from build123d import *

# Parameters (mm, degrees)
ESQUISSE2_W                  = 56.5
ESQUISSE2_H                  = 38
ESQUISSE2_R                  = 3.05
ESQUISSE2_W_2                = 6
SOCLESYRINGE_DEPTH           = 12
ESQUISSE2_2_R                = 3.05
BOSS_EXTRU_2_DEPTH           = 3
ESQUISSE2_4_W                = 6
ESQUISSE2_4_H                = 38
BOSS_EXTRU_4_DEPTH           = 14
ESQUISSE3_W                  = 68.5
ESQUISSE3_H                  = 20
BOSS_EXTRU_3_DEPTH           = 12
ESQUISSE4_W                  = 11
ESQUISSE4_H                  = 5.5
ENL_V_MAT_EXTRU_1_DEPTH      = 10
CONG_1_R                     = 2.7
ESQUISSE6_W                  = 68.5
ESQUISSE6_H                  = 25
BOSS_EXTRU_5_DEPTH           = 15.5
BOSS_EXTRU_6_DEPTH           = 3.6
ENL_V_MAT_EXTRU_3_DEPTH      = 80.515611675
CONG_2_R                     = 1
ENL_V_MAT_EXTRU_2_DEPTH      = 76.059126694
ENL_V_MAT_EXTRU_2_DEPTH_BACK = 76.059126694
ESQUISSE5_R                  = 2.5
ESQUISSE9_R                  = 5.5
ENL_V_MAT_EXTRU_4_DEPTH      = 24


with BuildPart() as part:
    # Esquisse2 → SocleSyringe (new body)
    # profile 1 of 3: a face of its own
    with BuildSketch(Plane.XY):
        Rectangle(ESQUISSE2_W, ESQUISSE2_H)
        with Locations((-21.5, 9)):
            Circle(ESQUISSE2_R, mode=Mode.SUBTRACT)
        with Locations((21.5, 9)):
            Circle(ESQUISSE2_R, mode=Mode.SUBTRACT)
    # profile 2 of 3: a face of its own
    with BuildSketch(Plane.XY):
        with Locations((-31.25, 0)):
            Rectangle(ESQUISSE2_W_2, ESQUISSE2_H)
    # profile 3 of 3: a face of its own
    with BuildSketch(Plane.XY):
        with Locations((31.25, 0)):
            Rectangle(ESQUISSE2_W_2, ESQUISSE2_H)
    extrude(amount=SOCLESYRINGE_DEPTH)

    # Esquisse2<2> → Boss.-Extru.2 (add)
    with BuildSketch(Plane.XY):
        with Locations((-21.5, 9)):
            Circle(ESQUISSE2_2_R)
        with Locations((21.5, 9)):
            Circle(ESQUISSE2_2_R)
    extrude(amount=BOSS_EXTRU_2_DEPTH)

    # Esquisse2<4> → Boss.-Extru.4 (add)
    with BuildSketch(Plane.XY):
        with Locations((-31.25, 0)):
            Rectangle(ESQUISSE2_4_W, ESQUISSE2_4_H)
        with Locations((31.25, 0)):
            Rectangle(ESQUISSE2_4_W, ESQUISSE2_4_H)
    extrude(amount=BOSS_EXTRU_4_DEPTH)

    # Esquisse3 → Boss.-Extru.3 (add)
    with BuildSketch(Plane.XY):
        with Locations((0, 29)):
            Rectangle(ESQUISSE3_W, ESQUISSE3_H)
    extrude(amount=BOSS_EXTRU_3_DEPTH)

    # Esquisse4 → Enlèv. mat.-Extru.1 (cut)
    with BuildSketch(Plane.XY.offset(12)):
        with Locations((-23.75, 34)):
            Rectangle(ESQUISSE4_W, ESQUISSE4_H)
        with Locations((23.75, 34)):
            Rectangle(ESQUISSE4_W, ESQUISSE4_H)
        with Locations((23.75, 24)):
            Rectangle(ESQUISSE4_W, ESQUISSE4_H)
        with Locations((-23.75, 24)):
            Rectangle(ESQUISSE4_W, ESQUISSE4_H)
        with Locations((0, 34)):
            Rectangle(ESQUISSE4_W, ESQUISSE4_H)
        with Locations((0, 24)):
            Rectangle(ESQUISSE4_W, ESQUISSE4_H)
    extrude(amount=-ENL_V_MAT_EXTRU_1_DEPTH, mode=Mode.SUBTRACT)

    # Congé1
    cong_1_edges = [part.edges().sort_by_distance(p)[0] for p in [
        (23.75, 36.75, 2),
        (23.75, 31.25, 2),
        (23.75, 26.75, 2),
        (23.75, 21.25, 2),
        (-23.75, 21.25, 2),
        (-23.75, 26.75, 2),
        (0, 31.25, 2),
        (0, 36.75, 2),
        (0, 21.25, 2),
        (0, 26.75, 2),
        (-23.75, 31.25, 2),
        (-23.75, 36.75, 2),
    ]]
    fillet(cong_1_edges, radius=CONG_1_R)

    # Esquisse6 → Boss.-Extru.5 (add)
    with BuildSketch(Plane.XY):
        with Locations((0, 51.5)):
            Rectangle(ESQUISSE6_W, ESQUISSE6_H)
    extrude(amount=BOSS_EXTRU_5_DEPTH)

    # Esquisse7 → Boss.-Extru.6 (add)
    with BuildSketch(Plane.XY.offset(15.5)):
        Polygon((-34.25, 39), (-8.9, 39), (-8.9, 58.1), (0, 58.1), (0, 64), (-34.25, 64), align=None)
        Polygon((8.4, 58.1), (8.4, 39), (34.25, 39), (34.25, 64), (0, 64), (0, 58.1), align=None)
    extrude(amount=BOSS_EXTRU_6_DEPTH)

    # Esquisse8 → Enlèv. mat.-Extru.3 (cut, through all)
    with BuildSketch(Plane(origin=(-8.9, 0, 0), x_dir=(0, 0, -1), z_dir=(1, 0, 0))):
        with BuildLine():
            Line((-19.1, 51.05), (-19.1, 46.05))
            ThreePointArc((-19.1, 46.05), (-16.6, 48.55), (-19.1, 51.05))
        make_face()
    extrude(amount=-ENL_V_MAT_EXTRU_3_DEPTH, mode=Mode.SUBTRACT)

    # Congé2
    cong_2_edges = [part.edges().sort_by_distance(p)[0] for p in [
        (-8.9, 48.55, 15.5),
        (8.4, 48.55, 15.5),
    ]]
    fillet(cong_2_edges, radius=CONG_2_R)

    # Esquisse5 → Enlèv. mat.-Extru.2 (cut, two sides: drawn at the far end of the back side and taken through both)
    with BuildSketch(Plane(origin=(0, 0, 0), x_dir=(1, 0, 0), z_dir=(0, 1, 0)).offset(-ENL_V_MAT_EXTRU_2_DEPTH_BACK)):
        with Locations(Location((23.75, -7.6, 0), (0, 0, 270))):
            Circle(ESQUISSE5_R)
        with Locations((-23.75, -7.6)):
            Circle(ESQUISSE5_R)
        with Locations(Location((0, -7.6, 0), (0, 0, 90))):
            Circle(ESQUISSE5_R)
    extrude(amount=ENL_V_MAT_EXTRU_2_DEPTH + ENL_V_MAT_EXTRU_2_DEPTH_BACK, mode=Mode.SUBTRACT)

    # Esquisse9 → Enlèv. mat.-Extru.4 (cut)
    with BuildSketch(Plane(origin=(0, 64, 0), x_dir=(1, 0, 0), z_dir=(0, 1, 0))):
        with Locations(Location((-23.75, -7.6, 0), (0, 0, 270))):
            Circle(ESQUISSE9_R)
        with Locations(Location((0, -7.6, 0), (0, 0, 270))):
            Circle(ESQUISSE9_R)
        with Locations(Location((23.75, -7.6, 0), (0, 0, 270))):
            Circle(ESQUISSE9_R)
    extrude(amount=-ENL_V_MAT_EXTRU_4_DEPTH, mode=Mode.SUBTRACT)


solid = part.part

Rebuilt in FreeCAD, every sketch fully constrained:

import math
import FreeCAD as App
import Part
import Sketcher

V = App.Vector
Q = App.Units.Quantity


def edges_at(feature, points):
    """Names of the edges that pass closest to the given points."""
    edges = feature.Shape.Edges
    near = lambda p: min(range(len(edges)), key=lambda i: edges[i].distToShape(Part.Vertex(*p))[0])
    return sorted({f"Edge{near(p) + 1}" for p in points})

doc = App.newDocument("Part")
body = doc.addObject("PartDesign::Body", "Body")

# Sketch on XY plane
sketch1 = body.newObject("Sketcher::SketchObject", "Sketch")
sketch1.AttachmentSupport = (doc.getObject("XY_Plane"), [""])
sketch1.MapMode = "FlatFace"
sketch1.addGeometry(Part.LineSegment(V(34.2, -19, 0), V(34.2, 19, 0)), False)
sketch1.addGeometry(Part.LineSegment(V(34.2, 19, 0), V(-34.2, 19, 0)), False)
sketch1.addGeometry(Part.LineSegment(V(-34.2, 19, 0), V(-34.2, -19, 0)), False)
sketch1.addGeometry(Part.LineSegment(V(-34.2, -19, 0), V(34.2, -19, 0)), False)
sketch1.addGeometry(Part.Circle(V(-21.5, 9, 0), V(0, 0, 1), 3), False)
sketch1.addGeometry(Part.Circle(V(21.5, 9, 0), V(0, 0, 1), 3), False)
sketch1.addConstraint(Sketcher.Constraint("Coincident", 0, 2, 1, 1))
sketch1.addConstraint(Sketcher.Constraint("Coincident", 1, 2, 2, 1))
sketch1.addConstraint(Sketcher.Constraint("Coincident", 2, 2, 3, 1))
sketch1.addConstraint(Sketcher.Constraint("Coincident", 3, 2, 0, 1))
sketch1.addConstraint(Sketcher.Constraint("Vertical", 0))
sketch1.addConstraint(Sketcher.Constraint("Horizontal", 1))
sketch1.addConstraint(Sketcher.Constraint("Vertical", 2))
sketch1.addConstraint(Sketcher.Constraint("Horizontal", 3))
sketch1.addConstraint(Sketcher.Constraint("Equal", 4, 5))
sketch1.addConstraint(Sketcher.Constraint("Symmetric", 0, 2, 2, 2, -1, 1))
sketch1.addConstraint(Sketcher.Constraint("Symmetric", 4, 3, 5, 3, -2))
sketch1.addConstraint(Sketcher.Constraint("Diameter", 4, Q("6.1 mm")))
sketch1.addConstraint(Sketcher.Constraint("DistanceY", 0, 1, 0, 2, Q("38 mm")))
sketch1.addConstraint(Sketcher.Constraint("DistanceX", 1, 2, 1, 1, Q("68.5 mm")))
sketch1.addConstraint(Sketcher.Constraint("DistanceY", -1, 1, 4, 3, Q("9 mm")))
sketch1.addConstraint(Sketcher.Constraint("DistanceX", 4, 3, 5, 3, Q("43 mm")))
pad1 = body.newObject("PartDesign::Pad", "Pad")
pad1.Profile = sketch1
pad1.Length = 12

# Sketch on XY plane
sketch2 = body.newObject("Sketcher::SketchObject", "Sketch001")
sketch2.AttachmentSupport = (doc.getObject("XY_Plane"), [""])
sketch2.MapMode = "FlatFace"
sketch2.addGeometry(Part.Circle(V(-21.5, 9, 0), V(0, 0, 1), 3), False)
sketch2.addGeometry(Part.Circle(V(21.5, 9, 0), V(0, 0, 1), 3), False)
sketch2.addConstraint(Sketcher.Constraint("Equal", 0, 1))
sketch2.addConstraint(Sketcher.Constraint("Symmetric", 0, 3, 1, 3, -2))
sketch2.addConstraint(Sketcher.Constraint("Diameter", 0, Q("6.1 mm")))
sketch2.addConstraint(Sketcher.Constraint("DistanceY", -1, 1, 0, 3, Q("9 mm")))
sketch2.addConstraint(Sketcher.Constraint("DistanceX", 0, 3, 1, 3, Q("43 mm")))
pad2 = body.newObject("PartDesign::Pad", "Pad001")
pad2.Profile = sketch2
pad2.Length = 3

# Sketch on XY plane
sketch3 = body.newObject("Sketcher::SketchObject", "Sketch002")
sketch3.AttachmentSupport = (doc.getObject("XY_Plane"), [""])
sketch3.MapMode = "FlatFace"
sketch3.addGeometry(Part.LineSegment(V(-34, 19, 0), V(-34, -19, 0)), False)
sketch3.addGeometry(Part.LineSegment(V(-34, -19, 0), V(-28, -19, 0)), False)
sketch3.addGeometry(Part.LineSegment(V(-28, -19, 0), V(-28, 19, 0)), False)
sketch3.addGeometry(Part.LineSegment(V(-28, 19, 0), V(-34, 19, 0)), False)
sketch3.addGeometry(Part.LineSegment(V(28, 19, 0), V(28, -19, 0)), False)
sketch3.addGeometry(Part.LineSegment(V(28, -19, 0), V(34, -19, 0)), False)
sketch3.addGeometry(Part.LineSegment(V(34, -19, 0), V(34, 19, 0)), False)
sketch3.addGeometry(Part.LineSegment(V(34, 19, 0), V(28, 19, 0)), False)
sketch3.addConstraint(Sketcher.Constraint("Coincident", 0, 2, 1, 1))
sketch3.addConstraint(Sketcher.Constraint("Coincident", 1, 2, 2, 1))
sketch3.addConstraint(Sketcher.Constraint("Coincident", 2, 2, 3, 1))
sketch3.addConstraint(Sketcher.Constraint("Coincident", 3, 2, 0, 1))
sketch3.addConstraint(Sketcher.Constraint("Coincident", 4, 2, 5, 1))
sketch3.addConstraint(Sketcher.Constraint("Coincident", 5, 2, 6, 1))
sketch3.addConstraint(Sketcher.Constraint("Coincident", 6, 2, 7, 1))
sketch3.addConstraint(Sketcher.Constraint("Coincident", 7, 2, 4, 1))
sketch3.addConstraint(Sketcher.Constraint("Vertical", 0))
sketch3.addConstraint(Sketcher.Constraint("Horizontal", 1))
sketch3.addConstraint(Sketcher.Constraint("Vertical", 2))
sketch3.addConstraint(Sketcher.Constraint("Horizontal", 3))
sketch3.addConstraint(Sketcher.Constraint("Vertical", 4))
sketch3.addConstraint(Sketcher.Constraint("Horizontal", 5))
sketch3.addConstraint(Sketcher.Constraint("Vertical", 6))
sketch3.addConstraint(Sketcher.Constraint("Horizontal", 7))
sketch3.addConstraint(Sketcher.Constraint("Symmetric", 2, 2, 4, 2, -1, 1))
sketch3.addConstraint(Sketcher.Constraint("Symmetric", 0, 2, 6, 2, -1, 1))
sketch3.addConstraint(Sketcher.Constraint("Horizontal", 1, 2, 4, 2))
sketch3.addConstraint(Sketcher.Constraint("DistanceX", 1, 1, 1, 2, Q("6 mm")))
sketch3.addConstraint(Sketcher.Constraint("DistanceY", 0, 2, 0, 1, Q("38 mm")))
sketch3.addConstraint(Sketcher.Constraint("DistanceX", 1, 2, 4, 2, Q("56.5 mm")))
pad3 = body.newObject("PartDesign::Pad", "Pad002")
pad3.Profile = sketch3
pad3.Length = 14

# Sketch on XY plane
sketch4 = body.newObject("Sketcher::SketchObject", "Sketch003")
sketch4.AttachmentSupport = (doc.getObject("XY_Plane"), [""])
sketch4.MapMode = "FlatFace"
sketch4.addGeometry(Part.LineSegment(V(-34, 39, 0), V(-34, 19, 0)), False)
sketch4.addGeometry(Part.LineSegment(V(-34, 19, 0), V(34, 19, 0)), False)
sketch4.addGeometry(Part.LineSegment(V(34, 19, 0), V(34, 39, 0)), False)
sketch4.addGeometry(Part.LineSegment(V(34, 39, 0), V(-34, 39, 0)), False)
sketch4.addConstraint(Sketcher.Constraint("Coincident", 0, 2, 1, 1))
sketch4.addConstraint(Sketcher.Constraint("Coincident", 1, 2, 2, 1))
sketch4.addConstraint(Sketcher.Constraint("Coincident", 2, 2, 3, 1))
sketch4.addConstraint(Sketcher.Constraint("Coincident", 3, 2, 0, 1))
sketch4.addConstraint(Sketcher.Constraint("Vertical", 0))
sketch4.addConstraint(Sketcher.Constraint("Horizontal", 1))
sketch4.addConstraint(Sketcher.Constraint("Vertical", 2))
sketch4.addConstraint(Sketcher.Constraint("Horizontal", 3))
sketch4.addConstraint(Sketcher.Constraint("DistanceY", 0, 2, 0, 1, Q("20 mm")))
sketch4.addConstraint(Sketcher.Constraint("DistanceX", 1, 1, 1, 2, Q("68.5 mm")))
sketch4.addConstraint(Sketcher.Constraint("DistanceY", -1, 1, 0, 2, Q("19 mm")))
sketch4.addConstraint(Sketcher.Constraint("DistanceX", 0, 2, -1, 1, Q("34.25 mm")))
pad4 = body.newObject("PartDesign::Pad", "Pad003")
pad4.Profile = sketch4
pad4.Length = 12

# Sketch on XY plane
sketch5 = body.newObject("Sketcher::SketchObject", "Sketch004")
sketch5.AttachmentSupport = (doc.getObject("XY_Plane"), [""])
sketch5.MapMode = "FlatFace"
sketch5.AttachmentOffset = App.Placement(V(0, 0, 12), App.Rotation())
sketch5.addGeometry(Part.LineSegment(V(-29, 37, 0), V(-29, 31, 0)), False)
sketch5.addGeometry(Part.LineSegment(V(-29, 31, 0), V(-18, 31, 0)), False)
sketch5.addGeometry(Part.LineSegment(V(-18, 31, 0), V(-18, 37, 0)), False)
sketch5.addGeometry(Part.LineSegment(V(-18, 37, 0), V(-29, 37, 0)), False)
sketch5.addGeometry(Part.LineSegment(V(18, 37, 0), V(18, 31, 0)), False)
sketch5.addGeometry(Part.LineSegment(V(18, 31, 0), V(29, 31, 0)), False)
sketch5.addGeometry(Part.LineSegment(V(29, 31, 0), V(29, 37, 0)), False)
sketch5.addGeometry(Part.LineSegment(V(29, 37, 0), V(18, 37, 0)), False)
sketch5.addGeometry(Part.LineSegment(V(18, 27, 0), V(18, 21, 0)), False)
sketch5.addGeometry(Part.LineSegment(V(18, 21, 0), V(29, 21, 0)), False)
sketch5.addGeometry(Part.LineSegment(V(29, 21, 0), V(29, 27, 0)), False)
sketch5.addGeometry(Part.LineSegment(V(29, 27, 0), V(18, 27, 0)), False)
sketch5.addGeometry(Part.LineSegment(V(-29, 27, 0), V(-29, 21, 0)), False)
sketch5.addGeometry(Part.LineSegment(V(-29, 21, 0), V(-18, 21, 0)), False)
sketch5.addGeometry(Part.LineSegment(V(-18, 21, 0), V(-18, 27, 0)), False)
sketch5.addGeometry(Part.LineSegment(V(-18, 27, 0), V(-29, 27, 0)), False)
sketch5.addGeometry(Part.LineSegment(V(-6, 37, 0), V(-6, 31, 0)), False)
sketch5.addGeometry(Part.LineSegment(V(-6, 31, 0), V(6, 31, 0)), False)
sketch5.addGeometry(Part.LineSegment(V(6, 31, 0), V(6, 37, 0)), False)
sketch5.addGeometry(Part.LineSegment(V(6, 37, 0), V(-6, 37, 0)), False)
sketch5.addGeometry(Part.LineSegment(V(-6, 27, 0), V(-6, 21, 0)), False)
sketch5.addGeometry(Part.LineSegment(V(-6, 21, 0), V(6, 21, 0)), False)
sketch5.addGeometry(Part.LineSegment(V(6, 21, 0), V(6, 27, 0)), False)
sketch5.addGeometry(Part.LineSegment(V(6, 27, 0), V(-6, 27, 0)), False)
sketch5.addConstraint(Sketcher.Constraint("Coincident", 0, 2, 1, 1))
sketch5.addConstraint(Sketcher.Constraint("Coincident", 1, 2, 2, 1))
sketch5.addConstraint(Sketcher.Constraint("Coincident", 2, 2, 3, 1))
sketch5.addConstraint(Sketcher.Constraint("Coincident", 3, 2, 0, 1))
sketch5.addConstraint(Sketcher.Constraint("Coincident", 4, 2, 5, 1))
sketch5.addConstraint(Sketcher.Constraint("Coincident", 5, 2, 6, 1))
sketch5.addConstraint(Sketcher.Constraint("Coincident", 6, 2, 7, 1))
sketch5.addConstraint(Sketcher.Constraint("Coincident", 7, 2, 4, 1))
sketch5.addConstraint(Sketcher.Constraint("Coincident", 8, 2, 9, 1))
sketch5.addConstraint(Sketcher.Constraint("Coincident", 9, 2, 10, 1))
sketch5.addConstraint(Sketcher.Constraint("Coincident", 10, 2, 11, 1))
sketch5.addConstraint(Sketcher.Constraint("Coincident", 11, 2, 8, 1))
sketch5.addConstraint(Sketcher.Constraint("Coincident", 12, 2, 13, 1))
sketch5.addConstraint(Sketcher.Constraint("Coincident", 13, 2, 14, 1))
sketch5.addConstraint(Sketcher.Constraint("Coincident", 14, 2, 15, 1))
sketch5.addConstraint(Sketcher.Constraint("Coincident", 15, 2, 12, 1))
sketch5.addConstraint(Sketcher.Constraint("Coincident", 16, 2, 17, 1))
sketch5.addConstraint(Sketcher.Constraint("Coincident", 17, 2, 18, 1))
sketch5.addConstraint(Sketcher.Constraint("Coincident", 18, 2, 19, 1))
sketch5.addConstraint(Sketcher.Constraint("Coincident", 19, 2, 16, 1))
sketch5.addConstraint(Sketcher.Constraint("Coincident", 20, 2, 21, 1))
sketch5.addConstraint(Sketcher.Constraint("Coincident", 21, 2, 22, 1))
sketch5.addConstraint(Sketcher.Constraint("Coincident", 22, 2, 23, 1))
sketch5.addConstraint(Sketcher.Constraint("Coincident", 23, 2, 20, 1))
sketch5.addConstraint(Sketcher.Constraint("Vertical", 0))
sketch5.addConstraint(Sketcher.Constraint("Horizontal", 1))
sketch5.addConstraint(Sketcher.Constraint("Vertical", 2))
sketch5.addConstraint(Sketcher.Constraint("Horizontal", 3))
sketch5.addConstraint(Sketcher.Constraint("Vertical", 4))
sketch5.addConstraint(Sketcher.Constraint("Horizontal", 5))
sketch5.addConstraint(Sketcher.Constraint("Vertical", 6))
sketch5.addConstraint(Sketcher.Constraint("Horizontal", 7))
sketch5.addConstraint(Sketcher.Constraint("Vertical", 8))
sketch5.addConstraint(Sketcher.Constraint("Horizontal", 9))
sketch5.addConstraint(Sketcher.Constraint("Vertical", 10))
sketch5.addConstraint(Sketcher.Constraint("Horizontal", 11))
sketch5.addConstraint(Sketcher.Constraint("Vertical", 12))
sketch5.addConstraint(Sketcher.Constraint("Horizontal", 13))
sketch5.addConstraint(Sketcher.Constraint("Vertical", 14))
sketch5.addConstraint(Sketcher.Constraint("Horizontal", 15))
sketch5.addConstraint(Sketcher.Constraint("Vertical", 16))
sketch5.addConstraint(Sketcher.Constraint("Horizontal", 17))
sketch5.addConstraint(Sketcher.Constraint("Vertical", 18))
sketch5.addConstraint(Sketcher.Constraint("Horizontal", 19))
sketch5.addConstraint(Sketcher.Constraint("Vertical", 20))
sketch5.addConstraint(Sketcher.Constraint("Horizontal", 21))
sketch5.addConstraint(Sketcher.Constraint("Vertical", 22))
sketch5.addConstraint(Sketcher.Constraint("Horizontal", 23))
sketch5.addConstraint(Sketcher.Constraint("Symmetric", 1, 2, 4, 2, -2))
sketch5.addConstraint(Sketcher.Constraint("Symmetric", 3, 2, 6, 2, -2))
sketch5.addConstraint(Sketcher.Constraint("Symmetric", 9, 2, 12, 2, -2))
sketch5.addConstraint(Sketcher.Constraint("Symmetric", 11, 2, 14, 2, -2))
sketch5.addConstraint(Sketcher.Constraint("Horizontal", 5, 2, 16, 2))
sketch5.addConstraint(Sketcher.Constraint("Horizontal", 7, 2, 18, 2))
sketch5.addConstraint(Sketcher.Constraint("Horizontal", 13, 2, 20, 2))
sketch5.addConstraint(Sketcher.Constraint("Horizontal", 15, 2, 22, 2))
sketch5.addConstraint(Sketcher.Constraint("Vertical", 7, 2, 8, 2))
sketch5.addConstraint(Sketcher.Constraint("Vertical", 6, 2, 9, 2))
sketch5.addConstraint(Sketcher.Constraint("Vertical", 19, 2, 20, 2))
sketch5.addConstraint(Sketcher.Constraint("Vertical", 18, 2, 21, 2))
sketch5.addConstraint(Sketcher.Constraint("Equal", 15, 17))
sketch5.addConstraint(Sketcher.Constraint("Equal", 6, 8))
sketch5.addConstraint(Sketcher.Constraint("DistanceX", 1, 1, 1, 2, Q("11 mm")))
sketch5.addConstraint(Sketcher.Constraint("DistanceY", 0, 2, 0, 1, Q("5.5 mm")))
sketch5.addConstraint(Sketcher.Constraint("DistanceY", 8, 2, 4, 2, Q("10 mm")))
sketch5.addConstraint(Sketcher.Constraint("DistanceX", 16, 2, -1, 1, Q("5.5 mm")))
sketch5.addConstraint(Sketcher.Constraint("DistanceX", 1, 2, 4, 2, Q("36.5 mm")))
sketch5.addConstraint(Sketcher.Constraint("DistanceY", -1, 1, 0, 2, Q("31.25 mm")))
pocket1 = body.newObject("PartDesign::Pocket", "Pocket")
pocket1.Profile = sketch5
pocket1.Length = 10
doc.recompute()

fillet = body.newObject("PartDesign::Fillet", "Fillet")
fillet.Base = (pocket1, edges_at(pocket1, [
    (23.75, 36.75, 2),
    (23.75, 31.25, 2),
    (23.75, 26.75, 2),
    (23.75, 21.25, 2),
    (-23.75, 21.25, 2),
    (-23.75, 26.75, 2),
    (0, 31.25, 2),
    (0, 36.75, 2),
    (0, 21.25, 2),
    (0, 26.75, 2),
    (-23.75, 31.25, 2),
    (-23.75, 36.75, 2),
]))
fillet.Radius = 2.7

# Sketch on XY plane
sketch6 = body.newObject("Sketcher::SketchObject", "Sketch005")
sketch6.AttachmentSupport = (doc.getObject("XY_Plane"), [""])
sketch6.MapMode = "FlatFace"
sketch6.addGeometry(Part.LineSegment(V(-34, 64, 0), V(-34, 39, 0)), False)
sketch6.addGeometry(Part.LineSegment(V(-34, 39, 0), V(34, 39, 0)), False)
sketch6.addGeometry(Part.LineSegment(V(34, 39, 0), V(34, 64, 0)), False)
sketch6.addGeometry(Part.LineSegment(V(34, 64, 0), V(-34, 64, 0)), False)
sketch6.addConstraint(Sketcher.Constraint("Coincident", 0, 2, 1, 1))
sketch6.addConstraint(Sketcher.Constraint("Coincident", 1, 2, 2, 1))
sketch6.addConstraint(Sketcher.Constraint("Coincident", 2, 2, 3, 1))
sketch6.addConstraint(Sketcher.Constraint("Coincident", 3, 2, 0, 1))
sketch6.addConstraint(Sketcher.Constraint("Vertical", 0))
sketch6.addConstraint(Sketcher.Constraint("Horizontal", 1))
sketch6.addConstraint(Sketcher.Constraint("Vertical", 2))
sketch6.addConstraint(Sketcher.Constraint("Horizontal", 3))
sketch6.addConstraint(Sketcher.Constraint("DistanceY", 0, 2, 0, 1, Q("25 mm")))
sketch6.addConstraint(Sketcher.Constraint("DistanceX", 1, 1, 1, 2, Q("68.5 mm")))
sketch6.addConstraint(Sketcher.Constraint("DistanceY", -1, 1, 0, 2, Q("39 mm")))
sketch6.addConstraint(Sketcher.Constraint("DistanceX", 0, 2, -1, 1, Q("34.25 mm")))
pad5 = body.newObject("PartDesign::Pad", "Pad004")
pad5.Profile = sketch6
pad5.Length = 15.5

# Sketch on XY plane
sketch7 = body.newObject("Sketcher::SketchObject", "Sketch006")
sketch7.AttachmentSupport = (doc.getObject("XY_Plane"), [""])
sketch7.MapMode = "FlatFace"
sketch7.AttachmentOffset = App.Placement(V(0, 0, 15.5), App.Rotation())
sketch7.addGeometry(Part.LineSegment(V(-34, 39, 0), V(-9, 39, 0)), False)
sketch7.addGeometry(Part.LineSegment(V(-9, 39, 0), V(-9, 58, 0)), False)
sketch7.addGeometry(Part.LineSegment(V(-9, 58, 0), V(8, 58, 0)), False)
sketch7.addGeometry(Part.LineSegment(V(8, 58, 0), V(8, 39, 0)), False)
sketch7.addGeometry(Part.LineSegment(V(8, 39, 0), V(34, 39, 0)), False)
sketch7.addGeometry(Part.LineSegment(V(34, 39, 0), V(34, 64, 0)), False)
sketch7.addGeometry(Part.LineSegment(V(34, 64, 0), V(-34, 64, 0)), False)
sketch7.addGeometry(Part.LineSegment(V(-34, 64, 0), V(-34, 39, 0)), False)
sketch7.addConstraint(Sketcher.Constraint("Coincident", 0, 2, 1, 1))
sketch7.addConstraint(Sketcher.Constraint("Coincident", 1, 2, 2, 1))
sketch7.addConstraint(Sketcher.Constraint("Coincident", 2, 2, 3, 1))
sketch7.addConstraint(Sketcher.Constraint("Coincident", 3, 2, 4, 1))
sketch7.addConstraint(Sketcher.Constraint("Coincident", 4, 2, 5, 1))
sketch7.addConstraint(Sketcher.Constraint("Coincident", 5, 2, 6, 1))
sketch7.addConstraint(Sketcher.Constraint("Coincident", 6, 2, 7, 1))
sketch7.addConstraint(Sketcher.Constraint("Coincident", 7, 2, 0, 1))
sketch7.addConstraint(Sketcher.Constraint("Horizontal", 0))
sketch7.addConstraint(Sketcher.Constraint("Vertical", 1))
sketch7.addConstraint(Sketcher.Constraint("Horizontal", 2))
sketch7.addConstraint(Sketcher.Constraint("Vertical", 3))
sketch7.addConstraint(Sketcher.Constraint("Horizontal", 4))
sketch7.addConstraint(Sketcher.Constraint("Vertical", 5))
sketch7.addConstraint(Sketcher.Constraint("Horizontal", 6))
sketch7.addConstraint(Sketcher.Constraint("Vertical", 7))
sketch7.addConstraint(Sketcher.Constraint("Symmetric", 4, 2, 7, 2, -2))
sketch7.addConstraint(Sketcher.Constraint("DistanceY", 5, 1, 5, 2, Q("25 mm")))
sketch7.addConstraint(Sketcher.Constraint("DistanceX", 2, 1, 2, 2, Q("17.3 mm")))
sketch7.addConstraint(Sketcher.Constraint("DistanceX", 6, 2, 6, 1, Q("68.5 mm")))
sketch7.addConstraint(Sketcher.Constraint("DistanceY", 1, 1, 1, 2, Q("19.1 mm")))
sketch7.addConstraint(Sketcher.Constraint("DistanceY", -1, 1, 0, 2, Q("39 mm")))
sketch7.addConstraint(Sketcher.Constraint("DistanceX", 0, 1, 0, 2, Q("25.35 mm")))
pad6 = body.newObject("PartDesign::Pad", "Pad005")
pad6.Profile = sketch7
pad6.Length = 3.6

# Sketch on YZ plane
sketch8 = body.newObject("Sketcher::SketchObject", "Sketch007")
sketch8.AttachmentSupport = (doc.getObject("YZ_Plane"), [""])
sketch8.MapMode = "FlatFace"
sketch8.AttachmentOffset = App.Placement(V(0, 0, -8.9), App.Rotation())
sketch8.addGeometry(Part.LineSegment(V(51, 19.1, 0), V(46, 19.1, 0)), False)
sketch8.addGeometry(Part.ArcOfCircle(Part.Circle(V(48.5, 19.1, 0), V(0, 0, 1), 2.5), math.radians(180), math.radians(360)), False)
sketch8.addConstraint(Sketcher.Constraint("Coincident", 0, 1, 1, 2))
sketch8.addConstraint(Sketcher.Constraint("Coincident", 1, 1, 0, 2))
sketch8.addConstraint(Sketcher.Constraint("Horizontal", 0))
sketch8.addConstraint(Sketcher.Constraint("Horizontal", 1, 3, 0, 1))
sketch8.addConstraint(Sketcher.Constraint("Radius", 1, Q("2.5 mm")))
sketch8.addConstraint(Sketcher.Constraint("DistanceY", -1, 1, 1, 3, Q("19.1 mm")))
sketch8.addConstraint(Sketcher.Constraint("DistanceX", -1, 1, 1, 3, Q("48.55 mm")))
pocket2 = body.newObject("PartDesign::Pocket", "Pocket001")
pocket2.Profile = sketch8
pocket2.Type = "ThroughAll"
doc.recompute()

fillet2 = body.newObject("PartDesign::Fillet", "Fillet001")
fillet2.Base = (pocket2, edges_at(pocket2, [(-8.9, 48.55, 15.5), (8.4, 48.55, 15.5)]))
fillet2.Radius = 1

# Sketch on XZ plane
sketch9 = body.newObject("Sketcher::SketchObject", "Sketch008")
sketch9.AttachmentSupport = (doc.getObject("XZ_Plane"), [""])
sketch9.MapMode = "FlatFace"
sketch9.addGeometry(Part.Circle(V(23.8, 7.6, 0), V(0, 0, 1), 2.5), False)
sketch9.addGeometry(Part.Circle(V(-23.8, 7.6, 0), V(0, 0, 1), 2.5), False)
sketch9.addGeometry(Part.Circle(V(0, 7.6, 0), V(0, 0, 1), 2.5), False)
sketch9.addConstraint(Sketcher.Constraint("Equal", 0, 1))
sketch9.addConstraint(Sketcher.Constraint("Equal", 1, 2))
sketch9.addConstraint(Sketcher.Constraint("Symmetric", 0, 3, 1, 3, -2))
sketch9.addConstraint(Sketcher.Constraint("PointOnObject", 2, 3, -2))
sketch9.addConstraint(Sketcher.Constraint("Horizontal", 1, 3, 2, 3))
sketch9.addConstraint(Sketcher.Constraint("Diameter", 0, Q("5 mm")))
sketch9.addConstraint(Sketcher.Constraint("DistanceY", -1, 1, 0, 3, Q("7.6 mm")))
sketch9.addConstraint(Sketcher.Constraint("DistanceX", 1, 3, 0, 3, Q("47.5 mm")))
pocket3 = body.newObject("PartDesign::Pocket", "Pocket002")
pocket3.Profile = sketch9
pocket3.Type = "ThroughAll"
pocket3.Midplane = True

# Sketch on XZ plane
sketch10 = body.newObject("Sketcher::SketchObject", "Sketch009")
sketch10.AttachmentSupport = (doc.getObject("XZ_Plane"), [""])
sketch10.MapMode = "FlatFace"
sketch10.AttachmentOffset = App.Placement(V(0, 0, -64), App.Rotation())
sketch10.addGeometry(Part.Circle(V(-24, 8, 0), V(0, 0, 1), 6), False)
sketch10.addGeometry(Part.Circle(V(0, 8, 0), V(0, 0, 1), 6), False)
sketch10.addGeometry(Part.Circle(V(24, 8, 0), V(0, 0, 1), 6), False)
sketch10.addConstraint(Sketcher.Constraint("Equal", 0, 1))
sketch10.addConstraint(Sketcher.Constraint("Equal", 1, 2))
sketch10.addConstraint(Sketcher.Constraint("Symmetric", 0, 3, 2, 3, -2))
sketch10.addConstraint(Sketcher.Constraint("PointOnObject", 1, 3, -2))
sketch10.addConstraint(Sketcher.Constraint("Horizontal", 0, 3, 1, 3))
sketch10.addConstraint(Sketcher.Constraint("Diameter", 0, Q("11 mm")))
sketch10.addConstraint(Sketcher.Constraint("DistanceY", -1, 1, 0, 3, Q("7.6 mm")))
sketch10.addConstraint(Sketcher.Constraint("DistanceX", 0, 3, 2, 3, Q("47.5 mm")))
pocket4 = body.newObject("PartDesign::Pocket", "Pocket003")
pocket4.Profile = sketch10
pocket4.Length = 24
pocket4.Reversed = True

doc.recompute()
